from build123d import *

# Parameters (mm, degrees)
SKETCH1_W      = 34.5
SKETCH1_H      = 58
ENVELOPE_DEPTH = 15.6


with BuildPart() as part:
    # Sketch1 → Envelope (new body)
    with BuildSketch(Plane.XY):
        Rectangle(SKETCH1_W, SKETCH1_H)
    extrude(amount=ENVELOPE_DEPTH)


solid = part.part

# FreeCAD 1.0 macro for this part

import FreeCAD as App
import Part
import Sketcher

V = App.Vector


def add_polygon(sketch, points):
    """Adds a closed chain of lines whose ends are joined by coincident constraints."""
    first, n = sketch.GeometryCount, len(points)
    for a, b in zip(points, points[1:] + points[:1]):
        sketch.addGeometry(Part.LineSegment(App.Vector(*a, 0), App.Vector(*b, 0)), False)
    for i in range(n):
        sketch.addConstraint(Sketcher.Constraint("Coincident", first + i, 2, first + (i + 1) % n, 1))

doc = App.newDocument("Part")
body = doc.addObject("PartDesign::Body", "Body")

# Sketch on XY plane
sketch1 = doc.addObject("Sketcher::SketchObject", "Sketch")
body.addObject(sketch1)
sketch1.AttachmentSupport = (doc.XY_Plane, [""])
sketch1.MapMode = "FlatFace"
add_polygon(sketch1, [(-17, 29), (-17, -29), (17, -29), (17, 29)])  # lines 0-3
sketch1.addConstraint([
    Sketcher.Constraint("Vertical", 0),
    Sketcher.Constraint("Horizontal", 1),
    Sketcher.Constraint("Vertical", 2),
    Sketcher.Constraint("Horizontal", 3),
    Sketcher.Constraint("Symmetric", 0, 2, 2, 2, -1, 1),
    Sketcher.Constraint("DistanceY", 0, 2, 0, 1, 58.0),
    Sketcher.Constraint("DistanceX", 1, 1, 1, 2, 34.5),
])
pad1 = doc.addObject("PartDesign::Pad", "Pad")
body.addObject(pad1)
pad1.Profile = sketch1
pad1.Length = 15.6

doc.recompute()
